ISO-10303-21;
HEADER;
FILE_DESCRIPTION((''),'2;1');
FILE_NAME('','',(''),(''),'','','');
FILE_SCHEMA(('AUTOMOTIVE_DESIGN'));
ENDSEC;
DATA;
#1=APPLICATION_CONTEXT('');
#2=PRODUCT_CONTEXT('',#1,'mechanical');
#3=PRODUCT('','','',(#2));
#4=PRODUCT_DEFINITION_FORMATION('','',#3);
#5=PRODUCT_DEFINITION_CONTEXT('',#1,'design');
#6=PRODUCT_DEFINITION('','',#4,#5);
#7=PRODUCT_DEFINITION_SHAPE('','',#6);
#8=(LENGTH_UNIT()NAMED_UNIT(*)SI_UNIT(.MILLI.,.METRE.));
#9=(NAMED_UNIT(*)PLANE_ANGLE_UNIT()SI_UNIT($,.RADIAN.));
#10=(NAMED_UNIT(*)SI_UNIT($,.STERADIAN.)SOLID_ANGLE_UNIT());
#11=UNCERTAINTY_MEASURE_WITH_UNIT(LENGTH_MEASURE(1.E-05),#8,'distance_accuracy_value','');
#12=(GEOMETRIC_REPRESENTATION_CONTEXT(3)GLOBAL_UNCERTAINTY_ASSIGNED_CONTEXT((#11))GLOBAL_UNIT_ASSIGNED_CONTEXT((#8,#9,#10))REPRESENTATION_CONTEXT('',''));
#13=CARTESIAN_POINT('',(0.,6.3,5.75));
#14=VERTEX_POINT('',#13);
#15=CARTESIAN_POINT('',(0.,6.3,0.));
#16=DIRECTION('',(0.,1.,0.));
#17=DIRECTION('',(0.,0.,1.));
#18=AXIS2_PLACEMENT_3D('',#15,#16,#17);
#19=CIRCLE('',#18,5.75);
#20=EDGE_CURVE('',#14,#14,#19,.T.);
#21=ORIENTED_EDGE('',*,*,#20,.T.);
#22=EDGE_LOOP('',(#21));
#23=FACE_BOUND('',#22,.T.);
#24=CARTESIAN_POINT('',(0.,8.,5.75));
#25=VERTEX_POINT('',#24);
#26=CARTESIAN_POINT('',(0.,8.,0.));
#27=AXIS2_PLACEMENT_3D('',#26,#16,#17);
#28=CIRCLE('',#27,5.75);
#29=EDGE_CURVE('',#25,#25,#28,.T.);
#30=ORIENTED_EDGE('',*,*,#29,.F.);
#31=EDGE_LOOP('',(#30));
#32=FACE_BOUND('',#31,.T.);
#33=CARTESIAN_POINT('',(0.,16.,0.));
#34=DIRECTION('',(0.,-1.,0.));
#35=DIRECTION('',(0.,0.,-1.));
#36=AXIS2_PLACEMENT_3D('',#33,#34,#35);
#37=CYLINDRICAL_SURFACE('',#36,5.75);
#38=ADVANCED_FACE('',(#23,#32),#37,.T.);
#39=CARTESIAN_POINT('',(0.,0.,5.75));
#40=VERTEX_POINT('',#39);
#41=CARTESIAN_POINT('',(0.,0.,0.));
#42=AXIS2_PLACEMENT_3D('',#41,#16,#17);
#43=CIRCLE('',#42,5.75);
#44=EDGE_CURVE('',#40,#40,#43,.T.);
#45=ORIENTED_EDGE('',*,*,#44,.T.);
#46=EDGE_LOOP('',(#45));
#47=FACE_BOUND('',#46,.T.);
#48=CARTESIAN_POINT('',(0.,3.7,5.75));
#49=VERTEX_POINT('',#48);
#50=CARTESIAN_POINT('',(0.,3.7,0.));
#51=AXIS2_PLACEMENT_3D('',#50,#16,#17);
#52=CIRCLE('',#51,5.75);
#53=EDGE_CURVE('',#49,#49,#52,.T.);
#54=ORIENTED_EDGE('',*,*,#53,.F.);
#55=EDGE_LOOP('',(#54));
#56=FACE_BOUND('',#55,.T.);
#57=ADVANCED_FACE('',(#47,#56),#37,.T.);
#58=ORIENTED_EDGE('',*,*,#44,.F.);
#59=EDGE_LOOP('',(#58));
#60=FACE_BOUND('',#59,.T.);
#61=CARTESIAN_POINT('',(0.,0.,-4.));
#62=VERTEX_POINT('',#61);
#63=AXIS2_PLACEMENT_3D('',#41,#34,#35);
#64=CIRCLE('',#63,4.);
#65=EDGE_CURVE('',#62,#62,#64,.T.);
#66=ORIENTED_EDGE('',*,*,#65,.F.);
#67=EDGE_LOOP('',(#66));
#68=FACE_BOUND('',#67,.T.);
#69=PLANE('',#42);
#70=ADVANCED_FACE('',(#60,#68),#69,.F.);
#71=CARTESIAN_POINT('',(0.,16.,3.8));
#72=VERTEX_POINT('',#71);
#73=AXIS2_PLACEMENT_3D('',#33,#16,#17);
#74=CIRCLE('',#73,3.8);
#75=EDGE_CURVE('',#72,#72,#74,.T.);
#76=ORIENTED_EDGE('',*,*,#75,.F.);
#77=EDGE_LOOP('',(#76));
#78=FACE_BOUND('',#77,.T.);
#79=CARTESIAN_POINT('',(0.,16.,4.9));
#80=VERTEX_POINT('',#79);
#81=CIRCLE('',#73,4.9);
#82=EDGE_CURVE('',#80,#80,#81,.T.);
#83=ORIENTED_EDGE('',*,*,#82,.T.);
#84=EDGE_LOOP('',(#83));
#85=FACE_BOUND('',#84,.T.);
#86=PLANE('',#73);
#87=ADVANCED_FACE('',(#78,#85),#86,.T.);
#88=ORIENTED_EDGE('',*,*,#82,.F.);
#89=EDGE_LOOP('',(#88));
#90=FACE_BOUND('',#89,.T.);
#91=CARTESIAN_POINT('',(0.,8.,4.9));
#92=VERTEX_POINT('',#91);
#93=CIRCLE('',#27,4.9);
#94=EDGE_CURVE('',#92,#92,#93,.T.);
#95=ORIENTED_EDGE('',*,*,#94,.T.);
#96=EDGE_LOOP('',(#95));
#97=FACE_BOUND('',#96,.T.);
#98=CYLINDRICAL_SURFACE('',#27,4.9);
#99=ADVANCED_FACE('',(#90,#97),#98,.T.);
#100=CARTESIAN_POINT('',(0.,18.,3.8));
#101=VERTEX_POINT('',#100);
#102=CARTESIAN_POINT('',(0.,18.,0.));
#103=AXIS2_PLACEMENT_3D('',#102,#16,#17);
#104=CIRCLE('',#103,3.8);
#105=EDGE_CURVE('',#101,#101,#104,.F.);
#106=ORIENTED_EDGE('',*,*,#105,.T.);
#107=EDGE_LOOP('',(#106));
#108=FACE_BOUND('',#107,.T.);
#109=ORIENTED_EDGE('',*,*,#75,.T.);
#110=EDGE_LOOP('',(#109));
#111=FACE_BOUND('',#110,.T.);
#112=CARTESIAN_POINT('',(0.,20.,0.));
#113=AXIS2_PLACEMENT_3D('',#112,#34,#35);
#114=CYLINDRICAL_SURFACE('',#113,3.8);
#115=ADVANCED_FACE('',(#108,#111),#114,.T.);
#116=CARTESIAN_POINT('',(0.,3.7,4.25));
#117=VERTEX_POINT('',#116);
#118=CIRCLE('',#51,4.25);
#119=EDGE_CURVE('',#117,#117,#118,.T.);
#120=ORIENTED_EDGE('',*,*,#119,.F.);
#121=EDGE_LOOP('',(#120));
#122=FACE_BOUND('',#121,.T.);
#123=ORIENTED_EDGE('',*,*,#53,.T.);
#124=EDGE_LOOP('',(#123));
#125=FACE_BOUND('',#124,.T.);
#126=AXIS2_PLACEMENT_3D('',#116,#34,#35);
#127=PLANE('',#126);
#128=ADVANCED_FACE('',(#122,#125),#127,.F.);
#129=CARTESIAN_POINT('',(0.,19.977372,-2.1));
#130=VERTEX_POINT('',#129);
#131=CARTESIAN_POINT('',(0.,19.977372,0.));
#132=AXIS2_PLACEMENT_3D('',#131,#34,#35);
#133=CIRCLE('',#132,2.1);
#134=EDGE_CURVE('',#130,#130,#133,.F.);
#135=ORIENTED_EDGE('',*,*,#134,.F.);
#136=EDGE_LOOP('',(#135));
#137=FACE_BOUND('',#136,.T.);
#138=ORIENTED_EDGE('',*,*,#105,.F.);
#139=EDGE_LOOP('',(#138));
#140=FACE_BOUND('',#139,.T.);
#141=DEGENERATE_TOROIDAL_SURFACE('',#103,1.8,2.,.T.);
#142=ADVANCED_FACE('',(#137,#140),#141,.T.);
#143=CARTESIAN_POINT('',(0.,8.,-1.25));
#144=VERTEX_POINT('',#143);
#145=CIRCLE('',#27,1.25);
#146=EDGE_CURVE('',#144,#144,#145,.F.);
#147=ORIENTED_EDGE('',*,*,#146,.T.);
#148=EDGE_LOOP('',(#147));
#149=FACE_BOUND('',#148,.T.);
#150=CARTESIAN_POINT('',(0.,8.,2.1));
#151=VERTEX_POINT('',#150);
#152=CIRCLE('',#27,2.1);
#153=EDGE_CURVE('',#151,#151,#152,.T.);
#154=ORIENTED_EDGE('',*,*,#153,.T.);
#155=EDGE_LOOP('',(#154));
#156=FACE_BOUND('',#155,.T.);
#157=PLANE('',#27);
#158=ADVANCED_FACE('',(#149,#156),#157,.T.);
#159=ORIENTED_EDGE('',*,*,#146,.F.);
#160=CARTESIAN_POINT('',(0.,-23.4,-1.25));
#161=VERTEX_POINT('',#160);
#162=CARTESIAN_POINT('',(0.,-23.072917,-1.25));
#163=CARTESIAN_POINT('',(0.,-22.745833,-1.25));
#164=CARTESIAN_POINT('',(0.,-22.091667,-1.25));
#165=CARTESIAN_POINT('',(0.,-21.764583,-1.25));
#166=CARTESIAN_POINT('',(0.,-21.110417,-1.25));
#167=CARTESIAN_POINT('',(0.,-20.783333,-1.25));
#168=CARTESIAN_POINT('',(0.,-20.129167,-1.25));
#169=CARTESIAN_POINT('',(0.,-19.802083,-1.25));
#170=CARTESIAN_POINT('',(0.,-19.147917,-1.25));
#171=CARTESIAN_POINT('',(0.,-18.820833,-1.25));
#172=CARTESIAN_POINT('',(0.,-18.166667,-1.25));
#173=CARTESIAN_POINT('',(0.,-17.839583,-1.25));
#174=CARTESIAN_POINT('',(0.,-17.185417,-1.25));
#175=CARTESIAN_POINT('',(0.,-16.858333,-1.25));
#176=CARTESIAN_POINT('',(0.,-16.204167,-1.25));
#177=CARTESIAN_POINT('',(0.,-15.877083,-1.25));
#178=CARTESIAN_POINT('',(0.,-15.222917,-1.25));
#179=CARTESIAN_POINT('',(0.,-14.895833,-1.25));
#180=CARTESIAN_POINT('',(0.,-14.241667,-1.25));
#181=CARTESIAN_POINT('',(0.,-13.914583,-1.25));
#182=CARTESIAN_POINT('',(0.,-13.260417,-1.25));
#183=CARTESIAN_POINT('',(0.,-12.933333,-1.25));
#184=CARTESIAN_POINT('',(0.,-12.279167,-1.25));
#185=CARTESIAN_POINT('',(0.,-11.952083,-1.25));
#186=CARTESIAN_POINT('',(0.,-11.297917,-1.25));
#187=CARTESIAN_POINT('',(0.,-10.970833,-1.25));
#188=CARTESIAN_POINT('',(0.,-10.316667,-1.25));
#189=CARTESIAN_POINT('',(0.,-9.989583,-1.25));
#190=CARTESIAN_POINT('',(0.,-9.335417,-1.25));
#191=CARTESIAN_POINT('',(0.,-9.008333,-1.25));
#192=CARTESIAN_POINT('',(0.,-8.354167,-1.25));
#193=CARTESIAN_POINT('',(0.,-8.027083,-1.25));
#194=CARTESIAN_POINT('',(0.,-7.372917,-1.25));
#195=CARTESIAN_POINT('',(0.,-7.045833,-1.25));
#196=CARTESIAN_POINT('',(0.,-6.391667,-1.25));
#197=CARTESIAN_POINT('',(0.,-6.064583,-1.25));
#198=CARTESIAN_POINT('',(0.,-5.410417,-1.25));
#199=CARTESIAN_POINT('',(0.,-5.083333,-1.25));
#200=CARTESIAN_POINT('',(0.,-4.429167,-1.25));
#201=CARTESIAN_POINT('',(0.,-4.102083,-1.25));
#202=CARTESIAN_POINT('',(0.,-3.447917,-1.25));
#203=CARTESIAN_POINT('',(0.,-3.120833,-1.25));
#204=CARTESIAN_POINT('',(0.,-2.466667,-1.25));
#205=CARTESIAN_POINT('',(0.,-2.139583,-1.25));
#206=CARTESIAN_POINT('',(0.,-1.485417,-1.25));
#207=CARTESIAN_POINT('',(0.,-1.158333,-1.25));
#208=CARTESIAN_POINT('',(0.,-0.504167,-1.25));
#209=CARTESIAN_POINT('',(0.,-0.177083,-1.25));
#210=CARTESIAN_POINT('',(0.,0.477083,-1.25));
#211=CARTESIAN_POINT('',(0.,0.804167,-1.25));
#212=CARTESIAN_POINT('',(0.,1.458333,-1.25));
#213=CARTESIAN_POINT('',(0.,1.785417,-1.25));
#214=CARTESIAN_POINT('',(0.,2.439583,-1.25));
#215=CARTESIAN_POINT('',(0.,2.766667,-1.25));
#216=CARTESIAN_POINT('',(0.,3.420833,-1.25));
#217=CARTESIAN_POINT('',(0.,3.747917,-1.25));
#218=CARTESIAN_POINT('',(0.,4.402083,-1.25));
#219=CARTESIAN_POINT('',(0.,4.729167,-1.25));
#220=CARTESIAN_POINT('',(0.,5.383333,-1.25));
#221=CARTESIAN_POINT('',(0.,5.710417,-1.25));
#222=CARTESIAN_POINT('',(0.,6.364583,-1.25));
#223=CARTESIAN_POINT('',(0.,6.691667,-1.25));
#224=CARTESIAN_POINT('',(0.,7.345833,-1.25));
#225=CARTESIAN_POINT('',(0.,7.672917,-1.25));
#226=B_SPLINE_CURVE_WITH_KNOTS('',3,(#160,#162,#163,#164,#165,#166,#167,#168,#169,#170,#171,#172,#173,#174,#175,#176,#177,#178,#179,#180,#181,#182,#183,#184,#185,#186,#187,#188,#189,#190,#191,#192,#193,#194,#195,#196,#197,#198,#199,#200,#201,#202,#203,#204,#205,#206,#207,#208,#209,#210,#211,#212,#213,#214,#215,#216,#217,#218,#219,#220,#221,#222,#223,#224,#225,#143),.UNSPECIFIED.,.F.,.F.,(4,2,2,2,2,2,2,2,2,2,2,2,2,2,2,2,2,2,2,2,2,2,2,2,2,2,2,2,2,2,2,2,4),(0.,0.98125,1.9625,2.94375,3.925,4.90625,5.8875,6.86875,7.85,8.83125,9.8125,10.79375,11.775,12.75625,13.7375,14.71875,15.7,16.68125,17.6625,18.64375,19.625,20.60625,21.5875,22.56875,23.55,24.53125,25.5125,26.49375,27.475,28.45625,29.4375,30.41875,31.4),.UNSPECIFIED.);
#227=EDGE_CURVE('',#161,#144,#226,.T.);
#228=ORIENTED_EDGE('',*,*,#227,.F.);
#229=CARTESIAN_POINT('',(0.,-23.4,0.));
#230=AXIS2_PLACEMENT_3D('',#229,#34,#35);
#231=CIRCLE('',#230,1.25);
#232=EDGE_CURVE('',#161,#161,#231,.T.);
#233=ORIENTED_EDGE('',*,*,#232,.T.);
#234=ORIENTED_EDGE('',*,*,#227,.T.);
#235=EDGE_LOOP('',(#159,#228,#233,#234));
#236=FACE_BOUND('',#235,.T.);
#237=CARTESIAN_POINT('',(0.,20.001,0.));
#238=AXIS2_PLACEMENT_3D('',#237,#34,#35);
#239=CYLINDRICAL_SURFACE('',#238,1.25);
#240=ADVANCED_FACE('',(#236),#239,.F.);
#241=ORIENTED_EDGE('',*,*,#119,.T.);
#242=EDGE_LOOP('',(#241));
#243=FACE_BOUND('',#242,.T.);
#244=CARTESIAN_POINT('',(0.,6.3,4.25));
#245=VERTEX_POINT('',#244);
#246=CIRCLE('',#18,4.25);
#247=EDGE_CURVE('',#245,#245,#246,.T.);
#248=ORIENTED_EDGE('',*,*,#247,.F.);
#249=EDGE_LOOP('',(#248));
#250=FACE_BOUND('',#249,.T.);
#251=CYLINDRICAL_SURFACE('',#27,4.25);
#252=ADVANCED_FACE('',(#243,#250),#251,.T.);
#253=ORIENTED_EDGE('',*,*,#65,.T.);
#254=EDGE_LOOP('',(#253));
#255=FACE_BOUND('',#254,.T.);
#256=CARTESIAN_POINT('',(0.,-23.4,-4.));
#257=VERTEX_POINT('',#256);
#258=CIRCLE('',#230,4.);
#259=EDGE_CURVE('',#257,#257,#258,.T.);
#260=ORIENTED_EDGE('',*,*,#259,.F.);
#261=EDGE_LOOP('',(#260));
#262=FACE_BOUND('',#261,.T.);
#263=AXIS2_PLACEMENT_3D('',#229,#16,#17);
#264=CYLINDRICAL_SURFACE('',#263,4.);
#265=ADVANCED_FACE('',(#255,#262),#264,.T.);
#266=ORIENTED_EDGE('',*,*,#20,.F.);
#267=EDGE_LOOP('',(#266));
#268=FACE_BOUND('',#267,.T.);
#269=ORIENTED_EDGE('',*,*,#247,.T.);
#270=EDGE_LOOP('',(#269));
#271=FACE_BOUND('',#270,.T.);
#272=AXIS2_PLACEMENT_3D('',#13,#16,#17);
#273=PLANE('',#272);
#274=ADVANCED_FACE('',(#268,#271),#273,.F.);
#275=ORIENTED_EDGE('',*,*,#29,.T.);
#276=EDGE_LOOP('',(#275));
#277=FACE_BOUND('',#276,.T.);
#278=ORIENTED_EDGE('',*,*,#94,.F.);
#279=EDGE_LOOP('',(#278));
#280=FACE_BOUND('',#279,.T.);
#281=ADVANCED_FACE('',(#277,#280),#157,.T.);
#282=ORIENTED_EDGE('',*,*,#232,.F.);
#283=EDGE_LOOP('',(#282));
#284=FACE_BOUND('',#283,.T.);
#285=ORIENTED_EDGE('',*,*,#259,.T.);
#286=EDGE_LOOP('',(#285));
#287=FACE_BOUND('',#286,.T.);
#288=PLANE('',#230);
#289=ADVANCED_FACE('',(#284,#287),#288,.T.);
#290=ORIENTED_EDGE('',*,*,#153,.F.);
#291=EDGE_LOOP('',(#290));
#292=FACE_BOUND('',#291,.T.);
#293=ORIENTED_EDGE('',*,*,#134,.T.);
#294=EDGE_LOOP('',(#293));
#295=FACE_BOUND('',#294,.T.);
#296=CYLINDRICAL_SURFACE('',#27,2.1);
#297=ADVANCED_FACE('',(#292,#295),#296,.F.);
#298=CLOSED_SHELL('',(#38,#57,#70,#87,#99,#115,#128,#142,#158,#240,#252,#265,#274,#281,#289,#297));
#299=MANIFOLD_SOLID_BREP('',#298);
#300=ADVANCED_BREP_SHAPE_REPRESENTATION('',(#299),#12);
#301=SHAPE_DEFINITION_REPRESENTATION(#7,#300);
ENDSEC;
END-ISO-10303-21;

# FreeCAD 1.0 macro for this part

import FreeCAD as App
import Part
import Sketcher
Q = App.Units.Quantity


def edges_at(feature, points):
    """Names of the edges that pass closest to the given points."""
    edges = feature.Shape.Edges
    near = lambda p: min(range(len(edges)), key=lambda i: edges[i].distToShape(Part.Vertex(*p))[0])
    return sorted({f"Edge{near(p) + 1}" for p in points})


def add_polygon(sketch, points):
    """Adds a closed chain of lines whose ends are joined by coincident constraints."""
    first, n = sketch.GeometryCount, len(points)
    for a, b in zip(points, points[1:] + points[:1]):
        sketch.addGeometry(Part.LineSegment(App.Vector(*a, 0), App.Vector(*b, 0)), False)
    for i in range(n):
        sketch.addConstraint(Sketcher.Constraint("Coincident", first + i, 2, first + (i + 1) % n, 1))

doc = App.newDocument("Part")
params = doc.addObject("Spreadsheet::Sheet", "Params")
for row, (alias, value) in enumerate([
    ("sketch1_diameter", "11.5 mm"),
    ("pad1_length", "16 mm"),
    ("sketch2_diameter", "9.8 mm"),
    ("pocket1_length", "8 mm"),
    ("sketch3_diameter", "7.6 mm"),
    ("pad2_length", "4 mm"),
    ("fillet_radius", "2 mm"),
    ("sketch4_diameter", "8 mm"),
    ("pad3_length", "23.4 mm"),
    ("sketch5_width", "2.6 mm"),
    ("sketch5_height", "1.5 mm"),
    ("groove_angle", "360 deg"),
    ("sketch6_diameter", "2.5 mm"),
    ("sketch7_diameter", "4.2 mm"),
    ("pocket3_length", "12 mm"),
], start=1):
    params.set(f"A{row}", alias)
    params.set(f"B{row}", "=" + value)
    params.setAlias(f"B{row}", alias)

body = doc.addObject("PartDesign::Body", "Body")

# Sketch on XZ plane
sketch1 = doc.addObject("Sketcher::SketchObject", "Sketch")
body.addObject(sketch1)
sketch1.AttachmentSupport = (doc.XZ_Plane, [""])
sketch1.MapMode = "FlatFace"
sketch1.addGeometry(Part.Circle(App.Vector(0, 0, 0), App.Vector(0, 0, 1), 6), False)
sketch1.addConstraint(Sketcher.Constraint("Coincident", 0, 3, -1, 1))
sketch1.addConstraint(Sketcher.Constraint("Diameter", 0, Q("11.5 mm")))
sketch1.setExpression("Constraints[1]", "Params.sketch1_diameter")
pad1 = doc.addObject("PartDesign::Pad", "Pad")
body.addObject(pad1)
pad1.Profile = sketch1
pad1.setExpression("Length", "Params.pad1_length")
pad1.Reversed = True

# Sketch on XZ plane
sketch2 = doc.addObject("Sketcher::SketchObject", "Sketch001")
body.addObject(sketch2)
sketch2.AttachmentSupport = (doc.XZ_Plane, [""])
sketch2.MapMode = "FlatFace"
sketch2.AttachmentOffset = App.Placement(App.Vector(0, 0, -16), App.Rotation())
add_polygon(sketch2, [(-9, -9), (-9, 9), (9, 9), (9, -9)])  # lines 0-3
sketch2.addGeometry(Part.Circle(App.Vector(0, 0, 0), App.Vector(0, 0, 1), 4.9), False)  # 4
sketch2.addConstraint(Sketcher.Constraint("Vertical", 0))
sketch2.addConstraint(Sketcher.Constraint("Horizontal", 1))
sketch2.addConstraint(Sketcher.Constraint("Vertical", 2))
sketch2.addConstraint(Sketcher.Constraint("Horizontal", 3))
sketch2.addConstraint(Sketcher.Constraint("Coincident", 4, 3, -1, 1))
sketch2.addConstraint(Sketcher.Constraint("Symmetric", 0, 2, 2, 2, -1, 1))
sketch2.addConstraint(Sketcher.Constraint("Equal", 3, 0))
sketch2.addConstraint(Sketcher.Constraint("Diameter", 4, Q("9.8 mm")))
sketch2.addConstraint(Sketcher.Constraint("DistanceX", 1, 1, 1, 2, Q("18.062 mm")))
sketch2.setExpression("Constraints[11]", "Params.sketch2_diameter")
pocket1 = doc.addObject("PartDesign::Pocket", "Pocket")
body.addObject(pocket1)
pocket1.Profile = sketch2
pocket1.setExpression("Length", "Params.pocket1_length")
pocket1.Reversed = True

# Sketch on XZ plane
sketch3 = doc.addObject("Sketcher::SketchObject", "Sketch002")
body.addObject(sketch3)
sketch3.AttachmentSupport = (doc.XZ_Plane, [""])
sketch3.MapMode = "FlatFace"
sketch3.AttachmentOffset = App.Placement(App.Vector(0, 0, -16), App.Rotation())
sketch3.addGeometry(Part.Circle(App.Vector(0, 0, 0), App.Vector(0, 0, 1), 3.8), False)
sketch3.addConstraint(Sketcher.Constraint("Coincident", 0, 3, -1, 1))
sketch3.addConstraint(Sketcher.Constraint("Diameter", 0, Q("7.6 mm")))
sketch3.setExpression("Constraints[1]", "Params.sketch3_diameter")
pad2 = doc.addObject("PartDesign::Pad", "Pad001")
body.addObject(pad2)
pad2.Profile = sketch3
pad2.setExpression("Length", "Params.pad2_length")
pad2.Reversed = True
doc.recompute()

fillet = doc.addObject("PartDesign::Fillet", "Fillet")
body.addObject(fillet)
fillet.Base = (pad2, edges_at(pad2, [(0, 20, -3.8)]))
fillet.setExpression("Radius", "Params.fillet_radius")

# Sketch on XZ plane
sketch4 = doc.addObject("Sketcher::SketchObject", "Sketch003")
body.addObject(sketch4)
sketch4.AttachmentSupport = (doc.XZ_Plane, [""])
sketch4.MapMode = "FlatFace"
sketch4.addGeometry(Part.Circle(App.Vector(0, 0, 0), App.Vector(0, 0, 1), 4), False)
sketch4.addConstraint(Sketcher.Constraint("Coincident", 0, 3, -1, 1))
sketch4.addConstraint(Sketcher.Constraint("Diameter", 0, Q("8 mm")))
sketch4.setExpression("Constraints[1]", "Params.sketch4_diameter")
pad3 = doc.addObject("PartDesign::Pad", "Pad002")
body.addObject(pad3)
pad3.Profile = sketch4
pad3.setExpression("Length", "Params.pad3_length")

# Sketch on YZ plane
sketch5 = doc.addObject("Sketcher::SketchObject", "Sketch004")
body.addObject(sketch5)
sketch5.AttachmentSupport = (doc.YZ_Plane, [""])
sketch5.MapMode = "FlatFace"
add_polygon(sketch5, [(6.3, 5.8), (3.7, 5.8), (3.7, 4.2), (6.3, 4.2)])  # lines 0-3
sketch5.addConstraint(Sketcher.Constraint("Horizontal", 0))
sketch5.addConstraint(Sketcher.Constraint("Vertical", 1))
sketch5.addConstraint(Sketcher.Constraint("Horizontal", 2))
sketch5.addConstraint(Sketcher.Constraint("Vertical", 3))
sketch5.addConstraint(Sketcher.Constraint("DistanceX", 0, 2, 0, 1, Q("2.6 mm")))
sketch5.addConstraint(Sketcher.Constraint("DistanceY", 1, 2, 1, 1, Q("1.5 mm")))
sketch5.addConstraint(Sketcher.Constraint("DistanceX", -1, 1, 0, 2, Q("3.7 mm")))
sketch5.addConstraint(Sketcher.Constraint("DistanceY", -1, 1, 0, 2, Q("5.75 mm")))
sketch5.setExpression("Constraints[8]", "Params.sketch5_width")
sketch5.setExpression("Constraints[9]", "Params.sketch5_height")
groove = doc.addObject("PartDesign::Groove", "Groove")
body.addObject(groove)
groove.Profile = sketch5
groove.ReferenceAxis = (sketch5, ["H_Axis"])
groove.setExpression("Angle", "Params.groove_angle")

# Sketch on XZ plane
sketch6 = doc.addObject("Sketcher::SketchObject", "Sketch005")
body.addObject(sketch6)
sketch6.AttachmentSupport = (doc.XZ_Plane, [""])
sketch6.MapMode = "FlatFace"
sketch6.AttachmentOffset = App.Placement(App.Vector(0, 0, 23.4), App.Rotation())
sketch6.addGeometry(Part.Circle(App.Vector(0, 0, 0), App.Vector(0, 0, 1), 1.2), False)
sketch6.addConstraint(Sketcher.Constraint("Coincident", 0, 3, -1, 1))
sketch6.addConstraint(Sketcher.Constraint("Diameter", 0, Q("2.5 mm")))
sketch6.setExpression("Constraints[1]", "Params.sketch6_diameter")
pocket2 = doc.addObject("PartDesign::Pocket", "Pocket001")
body.addObject(pocket2)
pocket2.Profile = sketch6
pocket2.Type = "UpToFirst"

# Sketch on XZ plane
sketch7 = doc.addObject("Sketcher::SketchObject", "Sketch006")
body.addObject(sketch7)
sketch7.AttachmentSupport = (doc.XZ_Plane, [""])
sketch7.MapMode = "FlatFace"
sketch7.AttachmentOffset = App.Placement(App.Vector(0, 0, -20), App.Rotation())
sketch7.addGeometry(Part.Circle(App.Vector(0, 0, 0), App.Vector(0, 0, 1), 2.1), False)
sketch7.addConstraint(Sketcher.Constraint("Coincident", 0, 3, -1, 1))
sketch7.addConstraint(Sketcher.Constraint("Diameter", 0, Q("4.2 mm")))
sketch7.setExpression("Constraints[1]", "Params.sketch7_diameter")
pocket3 = doc.addObject("PartDesign::Pocket", "Pocket002")
body.addObject(pocket3)
pocket3.Profile = sketch7
pocket3.setExpression("Length", "Params.pocket3_length")
pocket3.Reversed = True

doc.recompute()
